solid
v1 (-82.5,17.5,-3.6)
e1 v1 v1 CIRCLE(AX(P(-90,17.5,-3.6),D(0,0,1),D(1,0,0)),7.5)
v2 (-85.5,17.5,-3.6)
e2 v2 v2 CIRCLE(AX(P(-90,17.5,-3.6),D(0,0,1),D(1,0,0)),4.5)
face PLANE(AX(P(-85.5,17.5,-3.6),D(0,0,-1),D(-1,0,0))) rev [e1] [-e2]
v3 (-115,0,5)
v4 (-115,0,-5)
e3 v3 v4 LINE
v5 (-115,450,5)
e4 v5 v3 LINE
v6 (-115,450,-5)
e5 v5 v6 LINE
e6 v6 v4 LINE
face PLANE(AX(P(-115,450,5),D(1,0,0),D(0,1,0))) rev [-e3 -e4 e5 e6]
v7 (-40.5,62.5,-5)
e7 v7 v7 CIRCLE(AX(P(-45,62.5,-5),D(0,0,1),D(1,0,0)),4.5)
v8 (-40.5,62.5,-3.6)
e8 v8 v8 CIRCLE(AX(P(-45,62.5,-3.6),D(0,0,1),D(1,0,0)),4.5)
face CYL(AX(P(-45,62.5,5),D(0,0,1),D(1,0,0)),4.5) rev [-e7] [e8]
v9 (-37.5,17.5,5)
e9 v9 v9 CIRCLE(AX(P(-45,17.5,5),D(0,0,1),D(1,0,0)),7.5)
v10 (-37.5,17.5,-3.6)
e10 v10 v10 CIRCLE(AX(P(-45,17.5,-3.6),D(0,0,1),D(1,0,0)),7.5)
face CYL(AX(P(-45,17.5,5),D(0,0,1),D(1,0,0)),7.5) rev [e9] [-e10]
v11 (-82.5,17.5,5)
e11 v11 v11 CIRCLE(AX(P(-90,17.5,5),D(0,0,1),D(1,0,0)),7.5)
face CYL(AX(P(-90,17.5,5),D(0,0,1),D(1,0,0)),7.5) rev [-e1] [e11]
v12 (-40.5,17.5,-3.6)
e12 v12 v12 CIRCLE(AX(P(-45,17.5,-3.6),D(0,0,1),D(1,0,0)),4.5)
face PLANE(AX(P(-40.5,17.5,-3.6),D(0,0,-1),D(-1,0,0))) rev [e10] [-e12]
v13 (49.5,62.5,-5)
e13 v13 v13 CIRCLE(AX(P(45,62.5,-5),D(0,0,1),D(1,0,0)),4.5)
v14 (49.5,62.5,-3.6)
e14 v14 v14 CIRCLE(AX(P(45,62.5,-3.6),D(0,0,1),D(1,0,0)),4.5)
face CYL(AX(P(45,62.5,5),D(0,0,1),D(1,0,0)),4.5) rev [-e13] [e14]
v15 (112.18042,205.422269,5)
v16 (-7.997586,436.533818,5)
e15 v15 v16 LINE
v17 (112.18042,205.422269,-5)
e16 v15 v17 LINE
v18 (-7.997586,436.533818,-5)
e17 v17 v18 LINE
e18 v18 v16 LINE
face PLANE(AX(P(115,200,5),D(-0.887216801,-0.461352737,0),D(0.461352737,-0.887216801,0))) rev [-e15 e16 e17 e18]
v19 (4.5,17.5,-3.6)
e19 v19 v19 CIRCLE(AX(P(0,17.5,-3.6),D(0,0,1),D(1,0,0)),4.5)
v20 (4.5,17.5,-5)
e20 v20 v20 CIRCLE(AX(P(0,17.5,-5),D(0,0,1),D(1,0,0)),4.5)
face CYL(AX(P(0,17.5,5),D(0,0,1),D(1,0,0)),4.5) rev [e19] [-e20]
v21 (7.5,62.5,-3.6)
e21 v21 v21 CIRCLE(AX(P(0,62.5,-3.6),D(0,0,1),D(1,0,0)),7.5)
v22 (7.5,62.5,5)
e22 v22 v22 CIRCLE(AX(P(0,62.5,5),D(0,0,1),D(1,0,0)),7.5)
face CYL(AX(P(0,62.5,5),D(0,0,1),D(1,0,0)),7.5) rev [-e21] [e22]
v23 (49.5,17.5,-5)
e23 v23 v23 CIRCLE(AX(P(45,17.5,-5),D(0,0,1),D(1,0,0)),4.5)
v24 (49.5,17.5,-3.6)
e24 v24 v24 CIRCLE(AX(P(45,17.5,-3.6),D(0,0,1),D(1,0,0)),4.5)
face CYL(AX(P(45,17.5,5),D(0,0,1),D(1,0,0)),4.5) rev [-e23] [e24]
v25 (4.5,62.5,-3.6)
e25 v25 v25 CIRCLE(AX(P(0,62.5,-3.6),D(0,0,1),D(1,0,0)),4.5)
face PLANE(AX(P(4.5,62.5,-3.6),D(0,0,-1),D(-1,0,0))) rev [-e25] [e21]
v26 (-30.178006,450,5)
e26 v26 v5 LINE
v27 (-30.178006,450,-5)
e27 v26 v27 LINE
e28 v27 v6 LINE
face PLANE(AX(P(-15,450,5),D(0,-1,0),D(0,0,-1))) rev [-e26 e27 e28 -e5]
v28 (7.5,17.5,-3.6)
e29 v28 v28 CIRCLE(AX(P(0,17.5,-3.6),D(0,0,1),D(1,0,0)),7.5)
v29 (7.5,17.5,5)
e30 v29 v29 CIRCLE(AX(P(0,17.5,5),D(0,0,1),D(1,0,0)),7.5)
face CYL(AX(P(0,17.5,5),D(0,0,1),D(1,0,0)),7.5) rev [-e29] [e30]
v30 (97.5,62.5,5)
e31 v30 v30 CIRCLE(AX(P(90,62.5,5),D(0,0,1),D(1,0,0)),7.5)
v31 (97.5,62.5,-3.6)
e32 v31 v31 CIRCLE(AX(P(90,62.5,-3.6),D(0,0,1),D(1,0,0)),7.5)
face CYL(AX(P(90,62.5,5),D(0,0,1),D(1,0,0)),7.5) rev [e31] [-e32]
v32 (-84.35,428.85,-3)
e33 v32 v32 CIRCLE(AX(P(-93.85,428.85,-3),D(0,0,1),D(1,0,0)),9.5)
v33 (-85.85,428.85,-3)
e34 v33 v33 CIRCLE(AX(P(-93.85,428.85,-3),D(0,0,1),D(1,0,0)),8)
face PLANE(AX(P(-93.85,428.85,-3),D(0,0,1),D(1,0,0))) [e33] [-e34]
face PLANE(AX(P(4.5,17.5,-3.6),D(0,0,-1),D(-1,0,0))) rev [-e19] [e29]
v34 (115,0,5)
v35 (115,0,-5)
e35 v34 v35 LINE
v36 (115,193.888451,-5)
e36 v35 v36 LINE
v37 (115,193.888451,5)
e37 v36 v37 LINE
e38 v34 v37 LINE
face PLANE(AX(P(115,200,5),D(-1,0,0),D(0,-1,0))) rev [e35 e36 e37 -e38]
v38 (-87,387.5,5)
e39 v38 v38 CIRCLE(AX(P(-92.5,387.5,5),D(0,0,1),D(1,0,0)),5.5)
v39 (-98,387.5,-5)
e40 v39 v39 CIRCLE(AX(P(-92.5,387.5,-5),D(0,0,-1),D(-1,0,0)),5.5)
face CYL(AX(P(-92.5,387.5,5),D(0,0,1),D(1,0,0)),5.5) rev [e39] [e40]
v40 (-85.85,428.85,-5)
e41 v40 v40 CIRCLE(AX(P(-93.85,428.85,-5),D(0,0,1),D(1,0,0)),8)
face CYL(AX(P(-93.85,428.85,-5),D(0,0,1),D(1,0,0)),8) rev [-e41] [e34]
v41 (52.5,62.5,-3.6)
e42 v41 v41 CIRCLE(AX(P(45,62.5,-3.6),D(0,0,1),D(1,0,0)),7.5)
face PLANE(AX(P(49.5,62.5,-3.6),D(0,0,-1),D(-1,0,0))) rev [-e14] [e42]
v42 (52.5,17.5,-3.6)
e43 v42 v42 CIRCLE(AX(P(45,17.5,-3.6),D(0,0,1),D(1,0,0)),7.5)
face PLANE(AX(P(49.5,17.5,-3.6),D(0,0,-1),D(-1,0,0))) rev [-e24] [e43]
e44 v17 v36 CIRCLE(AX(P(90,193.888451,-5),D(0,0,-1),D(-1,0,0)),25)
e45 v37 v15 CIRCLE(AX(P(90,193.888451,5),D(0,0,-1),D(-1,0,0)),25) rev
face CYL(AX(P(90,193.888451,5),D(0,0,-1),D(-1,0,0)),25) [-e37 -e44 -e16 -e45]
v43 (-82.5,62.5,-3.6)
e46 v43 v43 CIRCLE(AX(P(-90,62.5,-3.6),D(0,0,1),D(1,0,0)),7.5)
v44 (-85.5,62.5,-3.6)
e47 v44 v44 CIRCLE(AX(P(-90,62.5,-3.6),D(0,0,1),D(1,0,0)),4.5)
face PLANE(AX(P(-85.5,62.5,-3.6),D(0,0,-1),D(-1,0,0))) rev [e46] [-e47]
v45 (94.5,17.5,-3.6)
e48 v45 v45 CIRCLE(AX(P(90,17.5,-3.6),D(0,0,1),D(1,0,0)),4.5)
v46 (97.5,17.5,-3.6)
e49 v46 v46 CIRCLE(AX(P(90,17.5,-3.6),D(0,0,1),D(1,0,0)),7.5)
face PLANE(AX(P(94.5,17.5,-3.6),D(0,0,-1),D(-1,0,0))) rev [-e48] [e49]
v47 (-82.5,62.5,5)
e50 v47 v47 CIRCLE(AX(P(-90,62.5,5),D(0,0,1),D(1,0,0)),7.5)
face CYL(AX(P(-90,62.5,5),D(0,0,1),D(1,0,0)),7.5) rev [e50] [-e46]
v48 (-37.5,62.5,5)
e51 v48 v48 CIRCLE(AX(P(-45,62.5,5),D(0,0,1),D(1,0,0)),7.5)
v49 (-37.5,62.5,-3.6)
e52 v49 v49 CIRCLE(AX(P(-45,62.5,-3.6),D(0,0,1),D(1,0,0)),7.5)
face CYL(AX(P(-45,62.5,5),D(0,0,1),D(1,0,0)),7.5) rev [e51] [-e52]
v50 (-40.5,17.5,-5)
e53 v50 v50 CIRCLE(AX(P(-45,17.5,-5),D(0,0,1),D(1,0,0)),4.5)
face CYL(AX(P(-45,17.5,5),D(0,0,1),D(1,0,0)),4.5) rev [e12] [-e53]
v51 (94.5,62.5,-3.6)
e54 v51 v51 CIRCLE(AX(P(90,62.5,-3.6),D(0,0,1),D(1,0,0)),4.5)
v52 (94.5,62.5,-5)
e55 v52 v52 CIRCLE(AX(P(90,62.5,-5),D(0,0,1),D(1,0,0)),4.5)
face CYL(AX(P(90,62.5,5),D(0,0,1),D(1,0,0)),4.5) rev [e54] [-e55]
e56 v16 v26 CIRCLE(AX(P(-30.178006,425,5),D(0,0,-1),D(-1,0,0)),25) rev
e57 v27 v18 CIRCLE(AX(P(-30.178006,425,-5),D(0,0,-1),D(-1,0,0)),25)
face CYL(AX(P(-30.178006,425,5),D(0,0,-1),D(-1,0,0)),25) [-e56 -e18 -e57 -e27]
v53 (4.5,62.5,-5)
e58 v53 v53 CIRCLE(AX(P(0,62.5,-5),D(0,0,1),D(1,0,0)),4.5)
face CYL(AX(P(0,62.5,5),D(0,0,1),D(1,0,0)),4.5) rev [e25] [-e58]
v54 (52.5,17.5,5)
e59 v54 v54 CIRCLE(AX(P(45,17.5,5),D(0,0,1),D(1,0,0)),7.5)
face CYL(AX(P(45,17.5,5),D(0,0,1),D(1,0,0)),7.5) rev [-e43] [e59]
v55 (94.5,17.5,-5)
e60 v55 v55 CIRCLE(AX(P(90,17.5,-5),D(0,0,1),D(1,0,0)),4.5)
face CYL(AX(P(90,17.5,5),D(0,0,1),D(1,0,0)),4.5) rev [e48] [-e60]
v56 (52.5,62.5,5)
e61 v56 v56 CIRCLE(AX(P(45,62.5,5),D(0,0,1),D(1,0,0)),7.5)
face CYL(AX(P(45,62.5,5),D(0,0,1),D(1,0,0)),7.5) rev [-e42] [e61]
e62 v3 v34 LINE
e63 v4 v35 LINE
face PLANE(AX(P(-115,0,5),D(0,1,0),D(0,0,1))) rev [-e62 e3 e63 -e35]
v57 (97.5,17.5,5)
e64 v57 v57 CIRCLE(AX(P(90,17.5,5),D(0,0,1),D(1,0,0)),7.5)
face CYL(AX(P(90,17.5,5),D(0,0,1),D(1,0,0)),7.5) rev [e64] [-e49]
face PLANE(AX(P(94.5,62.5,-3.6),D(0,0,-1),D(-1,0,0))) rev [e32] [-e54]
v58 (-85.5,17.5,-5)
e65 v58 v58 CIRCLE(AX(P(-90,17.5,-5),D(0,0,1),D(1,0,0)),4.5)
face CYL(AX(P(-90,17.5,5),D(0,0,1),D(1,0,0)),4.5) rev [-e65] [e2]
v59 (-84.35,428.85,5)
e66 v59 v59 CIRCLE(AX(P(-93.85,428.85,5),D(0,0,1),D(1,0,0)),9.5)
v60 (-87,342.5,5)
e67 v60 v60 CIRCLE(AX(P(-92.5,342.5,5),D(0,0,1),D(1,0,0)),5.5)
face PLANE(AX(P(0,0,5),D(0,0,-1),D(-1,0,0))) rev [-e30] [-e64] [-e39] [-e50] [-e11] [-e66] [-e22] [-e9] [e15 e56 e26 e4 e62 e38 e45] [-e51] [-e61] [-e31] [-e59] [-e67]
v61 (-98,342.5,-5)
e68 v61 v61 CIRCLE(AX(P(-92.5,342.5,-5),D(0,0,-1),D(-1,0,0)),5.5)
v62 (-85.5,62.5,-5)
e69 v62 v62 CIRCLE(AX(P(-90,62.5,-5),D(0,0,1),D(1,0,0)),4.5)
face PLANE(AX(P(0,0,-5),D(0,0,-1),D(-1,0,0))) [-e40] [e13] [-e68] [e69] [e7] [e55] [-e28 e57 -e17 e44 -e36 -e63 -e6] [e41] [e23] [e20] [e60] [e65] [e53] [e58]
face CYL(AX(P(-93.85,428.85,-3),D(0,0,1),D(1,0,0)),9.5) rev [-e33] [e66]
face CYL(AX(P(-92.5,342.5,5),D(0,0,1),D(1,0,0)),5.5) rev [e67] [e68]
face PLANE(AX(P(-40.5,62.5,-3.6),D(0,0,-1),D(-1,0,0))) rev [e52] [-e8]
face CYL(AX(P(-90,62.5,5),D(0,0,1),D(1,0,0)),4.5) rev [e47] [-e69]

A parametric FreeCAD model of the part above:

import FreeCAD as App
import Part
import Sketcher
from FreeCAD import Vector


def edges_at(feature, points):
    """Names of the edges that pass closest to the given points."""
    edges = feature.Shape.Edges
    near = lambda p: min(range(len(edges)), key=lambda i: edges[i].distToShape(Part.Vertex(*p))[0])
    return sorted({f"Edge{near(p) + 1}" for p in points})

doc = App.newDocument("Part")
body = doc.addObject("PartDesign::Body", "Body")

# Sketch on XY plane
sketch1 = body.newObject("Sketcher::SketchObject", "Sketch")
sketch1.AttachmentSupport = (doc.getObject("XY_Plane"), [""])
sketch1.MapMode = "FlatFace"
sketch1.addGeometry([
    Part.LineSegment(Vector(-115, 450, 0), Vector(-115, 0, 0)),  # 0
    Part.LineSegment(Vector(-115, 0, 0), Vector(115, 0, 0)),  # 1
    Part.LineSegment(Vector(115, 0, 0), Vector(115, 200, 0)),  # 2
    Part.LineSegment(Vector(115, 200, 0), Vector(-15, 450, 0)),  # 3
    Part.LineSegment(Vector(-15, 450, 0), Vector(-115, 450, 0)),  # 4
], False)
sketch1.addConstraint([
    Sketcher.Constraint("Coincident", 0, 2, 1, 1),
    Sketcher.Constraint("Coincident", 1, 2, 2, 1),
    Sketcher.Constraint("Coincident", 2, 2, 3, 1),
    Sketcher.Constraint("Coincident", 3, 2, 4, 1),
    Sketcher.Constraint("Coincident", 4, 2, 0, 1),
    Sketcher.Constraint("Vertical", 0),
    Sketcher.Constraint("Horizontal", 1),
    Sketcher.Constraint("Vertical", 2),
    Sketcher.Constraint("Horizontal", 4),
    Sketcher.Constraint("Symmetric", 0, 2, 1, 2, -1, 1),
    Sketcher.Constraint("DistanceX", 1, 1, 1, 2, 230.0),
    Sketcher.Constraint("DistanceX", 4, 2, 4, 1, 100.0),
    Sketcher.Constraint("DistanceY", 0, 2, 0, 1, 450.0),
    Sketcher.Constraint("DistanceY", 2, 1, 2, 2, 200.0),
])
pad1 = body.newObject("PartDesign::Pad", "Pad")
pad1.Profile = sketch1
pad1.Length = 10
pad1.Midplane = True

# Sketch on XY plane
sketch2 = body.newObject("Sketcher::SketchObject", "Sketch001")
sketch2.AttachmentSupport = (doc.getObject("XY_Plane"), [""])
sketch2.MapMode = "FlatFace"
sketch2.AttachmentOffset = App.Placement(Vector(0, 0, 5), App.Rotation())
sketch2.addGeometry([
    Part.Circle(Vector(-90, 17.5, 0), Vector(0, 0, 1), 4.5),  # 0
    Part.Circle(Vector(-45, 17.5, 0), Vector(0, 0, 1), 4.5),  # 1
    Part.Circle(Vector(45, 17.5, 0), Vector(0, 0, 1), 4.5),  # 2
    Part.Circle(Vector(90, 17.5, 0), Vector(0, 0, 1), 4.5),  # 3
    Part.Circle(Vector(0, 17.5, 0), Vector(0, 0, 1), 4.5),  # 4
    Part.Circle(Vector(-90, 62.5, 0), Vector(0, 0, 1), 4.5),  # 5
    Part.Circle(Vector(-45, 62.5, 0), Vector(0, 0, 1), 4.5),  # 6
    Part.Circle(Vector(45, 62.5, 0), Vector(0, 0, 1), 4.5),  # 7
    Part.Circle(Vector(90, 62.5, 0), Vector(0, 0, 1), 4.5),  # 8
    Part.Circle(Vector(0, 62.5, 0), Vector(0, 0, 1), 4.5),  # 9
], False)
sketch2.addConstraint([
    Sketcher.Constraint("Equal", 0, 1),
    Sketcher.Constraint("Equal", 1, 2),
    Sketcher.Constraint("Equal", 2, 3),
    Sketcher.Constraint("Equal", 3, 4),
    Sketcher.Constraint("Equal", 4, 5),
    Sketcher.Constraint("Equal", 5, 6),
    Sketcher.Constraint("Equal", 6, 7),
    Sketcher.Constraint("Equal", 7, 8),
    Sketcher.Constraint("Equal", 8, 9),
    Sketcher.Constraint("Symmetric", 1, 3, 2, 3, -2),
    Sketcher.Constraint("Symmetric", 0, 3, 3, 3, -2),
    Sketcher.Constraint("Symmetric", 6, 3, 7, 3, -2),
    Sketcher.Constraint("Symmetric", 5, 3, 8, 3, -2),
    Sketcher.Constraint("PointOnObject", 4, 3, -2),
    Sketcher.Constraint("PointOnObject", 9, 3, -2),
    Sketcher.Constraint("Horizontal", 0, 3, 1, 3),
    Sketcher.Constraint("Horizontal", 3, 3, 4, 3),
    Sketcher.Constraint("Horizontal", 5, 3, 6, 3),
    Sketcher.Constraint("Horizontal", 8, 3, 9, 3),
    Sketcher.Constraint("Vertical", 0, 3, 5, 3),
    Sketcher.Constraint("Vertical", 1, 3, 6, 3),
    Sketcher.Constraint("Diameter", 0, 9.0),
    Sketcher.Constraint("DistanceX", 0, 3, -1, 1, 90.0),
    Sketcher.Constraint("DistanceX", 1, 3, -1, 1, 45.0),
    Sketcher.Constraint("DistanceY", 0, 3, 5, 3, 45.0),
    Sketcher.Constraint("DistanceY", -1, 1, 0, 3, 17.5),
])
doc.recompute()
hole = body.newObject("PartDesign::Hole", "Hole")
hole.Profile = sketch2
hole.ThreadType = "None"
hole.Diameter = 9
hole.DepthType = "ThroughAll"
hole.HoleCutType = "Counterbore"
hole.HoleCutDiameter = 15
hole.HoleCutDepth = 8.6

# Sketch on XY plane
sketch3 = body.newObject("Sketcher::SketchObject", "Sketch002")
sketch3.AttachmentSupport = (doc.getObject("XY_Plane"), [""])
sketch3.MapMode = "FlatFace"
sketch3.AttachmentOffset = App.Placement(Vector(0, 0, 5), App.Rotation())
sketch3.addGeometry(Part.Circle(Vector(-93.85, 428.85, 0), Vector(0, 0, 1), 9.5), False)
sketch3.addConstraint([
    Sketcher.Constraint("Diameter", 0, 19.0),
    Sketcher.Constraint("DistanceX", 0, 3, -1, 1, 93.85),
    Sketcher.Constraint("DistanceY", -1, 1, 0, 3, 428.85),
])
pocket1 = body.newObject("PartDesign::Pocket", "Pocket")
pocket1.Profile = sketch3
pocket1.Length = 8

# Sketch on XY plane
sketch4 = body.newObject("Sketcher::SketchObject", "Sketch003")
sketch4.AttachmentSupport = (doc.getObject("XY_Plane"), [""])
sketch4.MapMode = "FlatFace"
sketch4.AttachmentOffset = App.Placement(Vector(0, 0, -3), App.Rotation())
sketch4.addGeometry(Part.Circle(Vector(-93.85, 428.85, 0), Vector(0, 0, 1), 8), False)
sketch4.addConstraint([
    Sketcher.Constraint("Diameter", 0, 16.0),
    Sketcher.Constraint("DistanceX", 0, 3, -1, 1, 93.85),
    Sketcher.Constraint("DistanceY", -1, 1, 0, 3, 428.85),
])
pocket2 = body.newObject("PartDesign::Pocket", "Pocket001")
pocket2.Profile = sketch4
pocket2.Type = "ThroughAll"
doc.recompute()

fillet = body.newObject("PartDesign::Fillet", "Fillet")
fillet.Base = (pocket2, edges_at(pocket2, [(-15, 450, 0), (115, 200, 0)]))
fillet.Radius = 25

# Sketch on XY plane
sketch5 = body.newObject("Sketcher::SketchObject", "Sketch004")
sketch5.AttachmentSupport = (doc.getObject("XY_Plane"), [""])
sketch5.MapMode = "FlatFace"
sketch5.AttachmentOffset = App.Placement(Vector(0, 0, 5), App.Rotation())
sketch5.addGeometry([
    Part.Circle(Vector(-92.5, 387.5, 0), Vector(0, 0, 1), 5.5),
    Part.Circle(Vector(-92.5, 342.5, 0), Vector(0, 0, 1), 5.5),
], False)
sketch5.addConstraint([
    Sketcher.Constraint("Equal", 0, 1),
    Sketcher.Constraint("Vertical", 0, 3, 1, 3),
    Sketcher.Constraint("Diameter", 0, 11.0),
    Sketcher.Constraint("DistanceY", 1, 3, 0, 3, 45.0),
    Sketcher.Constraint("DistanceX", 0, 3, -1, 1, 92.5),
    Sketcher.Constraint("DistanceY", -1, 1, 0, 3, 387.5),
])
doc.recompute()
hole2 = body.newObject("PartDesign::Hole", "Hole001")
hole2.Profile = sketch5
hole2.ThreadType = "None"
hole2.Diameter = 11
hole2.DepthType = "Dimension"
hole2.Depth = 25
hole2.DrillPoint = "Angled"
hole2.DrillPointAngle = 118

doc.recompute()
